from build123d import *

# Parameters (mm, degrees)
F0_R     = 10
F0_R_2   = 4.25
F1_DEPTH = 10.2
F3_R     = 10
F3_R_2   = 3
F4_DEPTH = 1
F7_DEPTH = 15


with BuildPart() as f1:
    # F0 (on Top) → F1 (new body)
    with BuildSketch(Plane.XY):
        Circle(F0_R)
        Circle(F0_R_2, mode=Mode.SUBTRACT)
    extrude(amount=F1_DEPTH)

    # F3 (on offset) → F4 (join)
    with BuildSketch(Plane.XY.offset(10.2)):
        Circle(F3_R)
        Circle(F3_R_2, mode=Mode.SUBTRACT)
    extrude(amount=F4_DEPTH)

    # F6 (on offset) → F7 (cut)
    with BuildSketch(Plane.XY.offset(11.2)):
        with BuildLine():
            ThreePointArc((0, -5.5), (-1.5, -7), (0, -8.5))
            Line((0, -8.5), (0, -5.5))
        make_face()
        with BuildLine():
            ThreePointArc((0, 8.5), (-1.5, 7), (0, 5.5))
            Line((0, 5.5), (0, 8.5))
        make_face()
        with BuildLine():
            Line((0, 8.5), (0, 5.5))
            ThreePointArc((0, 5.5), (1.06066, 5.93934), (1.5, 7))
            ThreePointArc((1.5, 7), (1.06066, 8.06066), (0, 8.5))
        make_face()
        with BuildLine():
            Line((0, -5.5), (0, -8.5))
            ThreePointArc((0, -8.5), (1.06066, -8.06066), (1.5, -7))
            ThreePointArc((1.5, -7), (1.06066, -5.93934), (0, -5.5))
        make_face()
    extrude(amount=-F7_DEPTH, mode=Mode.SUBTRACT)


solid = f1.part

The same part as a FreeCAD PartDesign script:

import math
import FreeCAD as App
import Part
import Sketcher

V = App.Vector

doc = App.newDocument("Part")
body = doc.addObject("PartDesign::Body", "Body")

sketch1 = doc.addObject("Sketcher::SketchObject", "Sketch")
body.addObject(sketch1)
sketch1.AttachmentSupport = (doc.XY_Plane, [""])
sketch1.MapMode = "FlatFace"
sketch1.addGeometry([
    Part.Circle(V(0, 0, 0), V(0, 0, 1), 10),
    Part.Circle(V(0, 0, 0), V(0, 0, 1), 4.2),
], False)
sketch1.addConstraint([
    Sketcher.Constraint("Coincident", 0, 3, -1, 1),
    Sketcher.Constraint("Coincident", 1, 3, -1, 1),
    Sketcher.Constraint("Diameter", 0, 20.0),
    Sketcher.Constraint("Diameter", 1, 8.5),
])
pad1 = doc.addObject("PartDesign::Pad", "Pad")
body.addObject(pad1)
pad1.Profile = sketch1
pad1.Length = 10.2

sketch2 = doc.addObject("Sketcher::SketchObject", "Sketch001")
body.addObject(sketch2)
sketch2.AttachmentSupport = (doc.XY_Plane, [""])
sketch2.MapMode = "FlatFace"
sketch2.AttachmentOffset = App.Placement(V(0, 0, 10.2), App.Rotation())
sketch2.addGeometry([
    Part.Circle(V(0, 0, 0), V(0, 0, 1), 10),
    Part.Circle(V(0, 0, 0), V(0, 0, 1), 3),
], False)
sketch2.addConstraint([
    Sketcher.Constraint("Coincident", 0, 3, -1, 1),
    Sketcher.Constraint("Coincident", 1, 3, -1, 1),
    Sketcher.Constraint("Diameter", 0, 20.0),
    Sketcher.Constraint("Diameter", 1, 6.0),
])
pad2 = doc.addObject("PartDesign::Pad", "Pad001")
body.addObject(pad2)
pad2.Profile = sketch2
pad2.Length = 1

sketch3 = doc.addObject("Sketcher::SketchObject", "Sketch002")
body.addObject(sketch3)
sketch3.AttachmentSupport = (doc.XY_Plane, [""])
sketch3.MapMode = "FlatFace"
sketch3.AttachmentOffset = App.Placement(V(0, 0, 11.2), App.Rotation())
sketch3.addGeometry([
    Part.ArcOfCircle(Part.Circle(V(0, -7, 0), V(0, 0, 1), 1.5), math.radians(90), math.radians(270)),
    Part.ArcOfCircle(Part.Circle(V(0, -7, 0), V(0, 0, 1), 1.5), math.radians(-90), math.radians(0)),
    Part.ArcOfCircle(Part.Circle(V(0, -7, 0), V(0, 0, 1), 1.5), math.radians(0), math.radians(90)),
    Part.ArcOfCircle(Part.Circle(V(0, 7, 0), V(0, 0, 1), 1.5), math.radians(90), math.radians(270)),
    Part.ArcOfCircle(Part.Circle(V(0, 7, 0), V(0, 0, 1), 1.5), math.radians(-90), math.radians(0)),
    Part.ArcOfCircle(Part.Circle(V(0, 7, 0), V(0, 0, 1), 1.5), math.radians(0), math.radians(90)),
], False)
sketch3.addConstraint([
    Sketcher.Constraint("Tangent", 0, 2, 1, 1),
    Sketcher.Constraint("Tangent", 1, 2, 2, 1),
    Sketcher.Constraint("Tangent", 2, 2, 0, 1),
    Sketcher.Constraint("Tangent", 3, 2, 4, 1),
    Sketcher.Constraint("Tangent", 4, 2, 5, 1),
    Sketcher.Constraint("Tangent", 5, 2, 3, 1),
    Sketcher.Constraint("Equal", 2, 3),
    Sketcher.Constraint("Symmetric", 0, 3, 3, 3, -1, 1),
    Sketcher.Constraint("Symmetric", 1, 2, 4, 2, -1),
    Sketcher.Constraint("PointOnObject", 0, 2, -2),
    Sketcher.Constraint("PointOnObject", 2, 2, -2),
    Sketcher.Constraint("PointOnObject", 3, 2, -2),
    Sketcher.Constraint("PointOnObject", 5, 2, -2),
    Sketcher.Constraint("Horizontal", 2, 3, 1, 2),
    Sketcher.Constraint("Radius", 0, 1.5),
    Sketcher.Constraint("DistanceY", 0, 3, -1, 1, 7.0),
])
pocket1 = doc.addObject("PartDesign::Pocket", "Pocket")
body.addObject(pocket1)
pocket1.Profile = sketch3
pocket1.Length = 15

doc.recompute()
